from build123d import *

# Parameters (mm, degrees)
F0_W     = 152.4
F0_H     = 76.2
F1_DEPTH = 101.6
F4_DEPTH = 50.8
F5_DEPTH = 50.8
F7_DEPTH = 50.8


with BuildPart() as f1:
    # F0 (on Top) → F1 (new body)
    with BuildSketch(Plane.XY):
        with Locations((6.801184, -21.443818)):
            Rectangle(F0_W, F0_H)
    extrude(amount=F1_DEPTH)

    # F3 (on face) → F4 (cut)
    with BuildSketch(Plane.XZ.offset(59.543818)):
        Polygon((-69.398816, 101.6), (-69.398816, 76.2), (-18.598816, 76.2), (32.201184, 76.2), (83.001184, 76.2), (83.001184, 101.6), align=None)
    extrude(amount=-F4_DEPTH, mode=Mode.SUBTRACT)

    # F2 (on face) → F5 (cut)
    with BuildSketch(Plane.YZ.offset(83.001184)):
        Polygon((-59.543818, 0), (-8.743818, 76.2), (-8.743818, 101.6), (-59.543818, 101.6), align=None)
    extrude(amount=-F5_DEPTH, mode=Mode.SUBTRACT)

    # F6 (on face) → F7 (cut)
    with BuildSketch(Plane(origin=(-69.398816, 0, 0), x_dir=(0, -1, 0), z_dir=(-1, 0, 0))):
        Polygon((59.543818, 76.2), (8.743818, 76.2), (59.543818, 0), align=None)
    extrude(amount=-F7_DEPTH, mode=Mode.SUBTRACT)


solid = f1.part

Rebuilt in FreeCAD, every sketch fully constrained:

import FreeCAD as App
import Part
import Sketcher
from FreeCAD import Vector
Q = App.Units.Quantity


def add_polygon(sketch, points):
    """Adds a closed chain of lines whose ends are joined by coincident constraints."""
    first, n = sketch.GeometryCount, len(points)
    for a, b in zip(points, points[1:] + points[:1]):
        sketch.addGeometry(Part.LineSegment(App.Vector(*a, 0), App.Vector(*b, 0)), False)
    for i in range(n):
        sketch.addConstraint(Sketcher.Constraint("Coincident", first + i, 2, first + (i + 1) % n, 1))

doc = App.newDocument("Part")
body = doc.addObject("PartDesign::Body", "Body")

sketch1 = body.newObject("Sketcher::SketchObject", "Sketch")
sketch1.AttachmentSupport = (doc.getObject("XY_Plane"), [""])
sketch1.MapMode = "FlatFace"
add_polygon(sketch1, [(-69, 17), (-69, -60), (83, -60), (83, 17)])
sketch1.addConstraint([
    Sketcher.Constraint("Vertical", 0),
    Sketcher.Constraint("Horizontal", 1),
    Sketcher.Constraint("Vertical", 2),
    Sketcher.Constraint("Horizontal", 3),
    Sketcher.Constraint("DistanceX", 1, 1, 1, 2, Q("6 in")),
    Sketcher.Constraint("DistanceY", 0, 2, 0, 1, Q("3 in")),
    Sketcher.Constraint("DistanceY", 0, 2, -1, 1, 59.543818),
    Sketcher.Constraint("DistanceX", 0, 2, -1, 1, 69.398816),
])
pad1 = body.newObject("PartDesign::Pad", "Pad")
pad1.Profile = sketch1
pad1.Length = Q("4 in")

sketch2 = body.newObject("Sketcher::SketchObject", "Sketch001")
sketch2.AttachmentSupport = (doc.getObject("XZ_Plane"), [""])
sketch2.MapMode = "FlatFace"
sketch2.AttachmentOffset = App.Placement(Vector(0, 0, 59.543818), App.Rotation())
add_polygon(sketch2, [(-69, 102), (-69, 76), (83, 76), (83, 102)])
sketch2.addConstraint([
    Sketcher.Constraint("Vertical", 0),
    Sketcher.Constraint("Horizontal", 1),
    Sketcher.Constraint("Vertical", 2),
    Sketcher.Constraint("Horizontal", 3),
    Sketcher.Constraint("DistanceX", 1, 1, 1, 2, Q("6 in")),
    Sketcher.Constraint("DistanceY", 0, 2, 0, 1, Q("1 in")),
    Sketcher.Constraint("DistanceY", -1, 1, 0, 2, Q("3 in")),
    Sketcher.Constraint("DistanceX", 0, 2, -1, 1, 69.398816),
])
pocket1 = body.newObject("PartDesign::Pocket", "Pocket")
pocket1.Profile = sketch2
pocket1.Length = Q("2 in")

sketch3 = body.newObject("Sketcher::SketchObject", "Sketch002")
sketch3.AttachmentSupport = (doc.getObject("YZ_Plane"), [""])
sketch3.MapMode = "FlatFace"
sketch3.AttachmentOffset = App.Placement(Vector(0, 0, 83.001184), App.Rotation())
add_polygon(sketch3, [(-60, 0), (-9, 76), (-9, 102), (-60, 102)])
sketch3.addConstraint([
    Sketcher.Constraint("Vertical", 1),
    Sketcher.Constraint("Horizontal", 2),
    Sketcher.Constraint("Vertical", 3),
    Sketcher.Constraint("PointOnObject", 3, 2, -1),
    Sketcher.Constraint("DistanceX", 2, 2, 2, 1, Q("2 in")),
    Sketcher.Constraint("DistanceY", 1, 1, 1, 2, Q("1 in")),
    Sketcher.Constraint("DistanceY", 3, 2, 3, 1, Q("4 in")),
    Sketcher.Constraint("DistanceX", 2, 2, -1, 1, 59.543818),
])
pocket2 = body.newObject("PartDesign::Pocket", "Pocket001")
pocket2.Profile = sketch3
pocket2.Length = Q("2 in")

sketch4 = body.newObject("Sketcher::SketchObject", "Sketch003")
sketch4.AttachmentSupport = (doc.getObject("YZ_Plane"), [""])
sketch4.MapMode = "FlatFace"
sketch4.AttachmentOffset = App.Placement(Vector(0, 0, -69.398816), App.Rotation())
add_polygon(sketch4, [(-60, 76), (-9, 76), (-60, 0)])
sketch4.addConstraint([
    Sketcher.Constraint("Horizontal", 0),
    Sketcher.Constraint("Vertical", 2),
    Sketcher.Constraint("PointOnObject", 1, 2, -1),
    Sketcher.Constraint("DistanceX", 0, 1, 0, 2, Q("2 in")),
    Sketcher.Constraint("DistanceY", 2, 1, 2, 2, Q("3 in")),
    Sketcher.Constraint("DistanceX", 1, 2, -1, 1, 59.543818),
])
pocket3 = body.newObject("PartDesign::Pocket", "Pocket002")
pocket3.Profile = sketch4
pocket3.Length = Q("2 in")
pocket3.Reversed = True

doc.recompute()
